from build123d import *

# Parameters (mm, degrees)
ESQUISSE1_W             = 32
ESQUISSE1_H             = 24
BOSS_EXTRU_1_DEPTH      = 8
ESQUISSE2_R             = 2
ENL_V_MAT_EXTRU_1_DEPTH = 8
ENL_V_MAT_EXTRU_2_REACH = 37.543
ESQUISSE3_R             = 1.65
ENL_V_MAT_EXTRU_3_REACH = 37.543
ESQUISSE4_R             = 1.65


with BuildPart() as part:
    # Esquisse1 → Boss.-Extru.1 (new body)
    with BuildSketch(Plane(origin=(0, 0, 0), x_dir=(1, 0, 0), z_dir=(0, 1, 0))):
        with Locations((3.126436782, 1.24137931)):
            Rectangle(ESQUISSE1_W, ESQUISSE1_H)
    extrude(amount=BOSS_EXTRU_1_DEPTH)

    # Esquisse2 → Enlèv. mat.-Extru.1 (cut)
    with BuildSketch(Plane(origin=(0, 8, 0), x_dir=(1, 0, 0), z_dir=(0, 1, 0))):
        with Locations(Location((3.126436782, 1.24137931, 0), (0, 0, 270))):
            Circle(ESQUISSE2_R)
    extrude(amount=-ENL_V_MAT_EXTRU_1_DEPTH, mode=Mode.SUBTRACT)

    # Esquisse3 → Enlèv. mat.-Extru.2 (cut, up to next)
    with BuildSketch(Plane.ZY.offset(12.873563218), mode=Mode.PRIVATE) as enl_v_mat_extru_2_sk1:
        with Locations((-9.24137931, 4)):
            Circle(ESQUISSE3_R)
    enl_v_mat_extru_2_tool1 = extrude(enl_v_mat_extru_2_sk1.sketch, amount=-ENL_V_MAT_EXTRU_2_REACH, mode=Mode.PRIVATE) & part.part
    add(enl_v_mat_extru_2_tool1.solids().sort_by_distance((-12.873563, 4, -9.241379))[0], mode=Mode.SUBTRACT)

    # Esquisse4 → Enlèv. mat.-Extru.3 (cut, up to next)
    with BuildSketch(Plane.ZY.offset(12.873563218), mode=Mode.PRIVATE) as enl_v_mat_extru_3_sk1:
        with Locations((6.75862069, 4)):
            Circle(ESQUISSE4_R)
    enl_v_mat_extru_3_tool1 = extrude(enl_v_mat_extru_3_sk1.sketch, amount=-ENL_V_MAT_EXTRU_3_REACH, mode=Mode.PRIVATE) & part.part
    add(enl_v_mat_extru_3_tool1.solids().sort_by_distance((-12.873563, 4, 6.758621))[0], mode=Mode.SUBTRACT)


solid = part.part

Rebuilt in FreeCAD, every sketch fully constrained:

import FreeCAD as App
import Part
import Sketcher

V = App.Vector
Q = App.Units.Quantity


def add_polygon(sketch, points):
    """Adds a closed chain of lines whose ends are joined by coincident constraints."""
    first, n = sketch.GeometryCount, len(points)
    for a, b in zip(points, points[1:] + points[:1]):
        sketch.addGeometry(Part.LineSegment(App.Vector(*a, 0), App.Vector(*b, 0)), False)
    for i in range(n):
        sketch.addConstraint(Sketcher.Constraint("Coincident", first + i, 2, first + (i + 1) % n, 1))

doc = App.newDocument("Part")
body = doc.addObject("PartDesign::Body", "Body")

sketch1 = body.newObject("Sketcher::SketchObject", "Sketch")
sketch1.AttachmentSupport = (doc.getObject("XZ_Plane"), [""])
sketch1.MapMode = "FlatFace"
add_polygon(sketch1, [(-12.873563, -13.241379), (-12.873563, 10.758621), (19.126437, 10.758621), (19.126437, -13.241379)])
sketch1.addConstraint([
    Sketcher.Constraint("Vertical", 0),
    Sketcher.Constraint("Horizontal", 1),
    Sketcher.Constraint("Vertical", 2),
    Sketcher.Constraint("Horizontal", 3),
    Sketcher.Constraint("DistanceX", 1, 1, 1, 2, Q("32 mm")),
    Sketcher.Constraint("DistanceY", 0, 1, 0, 2, Q("24 mm")),
    Sketcher.Constraint("DistanceY", -1, 1, 0, 2, Q("10.758621 mm")),
    Sketcher.Constraint("DistanceX", 0, 2, -1, 1, Q("12.873563 mm")),
])
pad1 = body.newObject("PartDesign::Pad", "Pad")
pad1.Profile = sketch1
pad1.Length = 8
pad1.Reversed = True

sketch2 = body.newObject("Sketcher::SketchObject", "Sketch001")
sketch2.AttachmentSupport = (doc.getObject("XZ_Plane"), [""])
sketch2.MapMode = "FlatFace"
sketch2.AttachmentOffset = App.Placement(V(0, 0, -8), App.Rotation())
sketch2.addGeometry(Part.Circle(V(3.126437, -1.241379, 0), V(0, 0, 1), 2), False)
sketch2.addConstraint([
    Sketcher.Constraint("Diameter", 0, Q("4 mm")),
    Sketcher.Constraint("DistanceY", 0, 3, -1, 1, Q("1.241379 mm")),
    Sketcher.Constraint("DistanceX", -1, 1, 0, 3, Q("3.126437 mm")),
])
pocket1 = body.newObject("PartDesign::Pocket", "Pocket")
pocket1.Profile = sketch2
pocket1.Length = 8
pocket1.Reversed = True

sketch3 = body.newObject("Sketcher::SketchObject", "Sketch002")
sketch3.AttachmentSupport = (doc.getObject("YZ_Plane"), [""])
sketch3.MapMode = "FlatFace"
sketch3.AttachmentOffset = App.Placement(V(0, 0, -12.873563), App.Rotation())
sketch3.addGeometry(Part.Circle(V(4, -9.241379, 0), V(0, 0, 1), 1.65), False)
sketch3.addConstraint([
    Sketcher.Constraint("Diameter", 0, Q("3.3 mm")),
    Sketcher.Constraint("DistanceX", -1, 1, 0, 3, Q("4 mm")),
    Sketcher.Constraint("DistanceY", 0, 3, -1, 1, Q("9.241379 mm")),
])
pocket2 = body.newObject("PartDesign::Pocket", "Pocket001")
pocket2.Profile = sketch3
pocket2.Type = "UpToFirst"
pocket2.Reversed = True

sketch4 = body.newObject("Sketcher::SketchObject", "Sketch003")
sketch4.AttachmentSupport = (doc.getObject("YZ_Plane"), [""])
sketch4.MapMode = "FlatFace"
sketch4.AttachmentOffset = App.Placement(V(0, 0, -12.873563), App.Rotation())
sketch4.addGeometry(Part.Circle(V(4, 6.758621, 0), V(0, 0, 1), 1.65), False)
sketch4.addConstraint([
    Sketcher.Constraint("Diameter", 0, Q("3.3 mm")),
    Sketcher.Constraint("DistanceX", -1, 1, 0, 3, Q("4 mm")),
    Sketcher.Constraint("DistanceY", -1, 1, 0, 3, Q("6.758621 mm")),
])
pocket3 = body.newObject("PartDesign::Pocket", "Pocket002")
pocket3.Profile = sketch4
pocket3.Type = "UpToFirst"
pocket3.Reversed = True

doc.recompute()
